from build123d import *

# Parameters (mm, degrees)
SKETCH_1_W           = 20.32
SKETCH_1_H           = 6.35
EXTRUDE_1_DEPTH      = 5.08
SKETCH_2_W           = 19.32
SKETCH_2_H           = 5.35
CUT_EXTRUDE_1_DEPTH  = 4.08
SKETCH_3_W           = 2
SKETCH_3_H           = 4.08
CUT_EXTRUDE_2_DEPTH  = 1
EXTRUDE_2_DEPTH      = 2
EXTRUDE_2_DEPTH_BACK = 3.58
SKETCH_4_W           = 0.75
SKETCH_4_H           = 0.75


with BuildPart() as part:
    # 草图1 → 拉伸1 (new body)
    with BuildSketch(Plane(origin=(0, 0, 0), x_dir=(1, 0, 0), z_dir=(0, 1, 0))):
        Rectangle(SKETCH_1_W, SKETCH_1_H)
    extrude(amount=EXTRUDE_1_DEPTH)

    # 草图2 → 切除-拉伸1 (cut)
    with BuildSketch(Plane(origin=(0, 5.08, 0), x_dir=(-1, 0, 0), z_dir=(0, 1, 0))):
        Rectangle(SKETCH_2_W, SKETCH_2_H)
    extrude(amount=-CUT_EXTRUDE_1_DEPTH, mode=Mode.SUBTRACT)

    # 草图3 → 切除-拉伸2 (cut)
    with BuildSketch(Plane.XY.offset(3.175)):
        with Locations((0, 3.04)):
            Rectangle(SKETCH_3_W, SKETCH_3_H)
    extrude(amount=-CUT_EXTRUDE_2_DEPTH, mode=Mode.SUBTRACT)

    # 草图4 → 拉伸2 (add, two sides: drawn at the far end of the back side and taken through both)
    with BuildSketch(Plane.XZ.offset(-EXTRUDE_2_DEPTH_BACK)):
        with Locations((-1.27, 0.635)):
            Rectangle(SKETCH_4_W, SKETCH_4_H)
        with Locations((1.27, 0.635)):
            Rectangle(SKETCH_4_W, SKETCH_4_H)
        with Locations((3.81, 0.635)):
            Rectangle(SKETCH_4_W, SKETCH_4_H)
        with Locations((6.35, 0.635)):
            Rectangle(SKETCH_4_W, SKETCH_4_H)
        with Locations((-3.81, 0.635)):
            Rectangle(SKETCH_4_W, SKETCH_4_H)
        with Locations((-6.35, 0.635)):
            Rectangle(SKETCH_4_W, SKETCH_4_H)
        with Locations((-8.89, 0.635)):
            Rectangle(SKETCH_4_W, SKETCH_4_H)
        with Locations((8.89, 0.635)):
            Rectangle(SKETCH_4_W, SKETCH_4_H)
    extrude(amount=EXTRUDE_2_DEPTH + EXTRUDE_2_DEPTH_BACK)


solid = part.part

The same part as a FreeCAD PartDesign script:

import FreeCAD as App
import Part
import Sketcher
Q = App.Units.Quantity

doc = App.newDocument("Part")
params = doc.addObject("Spreadsheet::Sheet", "Params")
for row, (alias, value) in enumerate([
    ("sketch1_width", "0.8 in"),
    ("sketch1_height", "0.25 in"),
    ("pad1_length", "0.2 in"),
    ("pocket1_length", "4.08 mm"),
    ("pocket2_length", "1 mm"),
    ("pad2_length", "2 mm"),
    ("pad2_length2", "3.58 mm"),
], start=1):
    params.set(f"A{row}", alias)
    params.set(f"B{row}", "=" + value)
    params.setAlias(f"B{row}", alias)

body = doc.addObject("PartDesign::Body", "Body")

sketch1 = doc.addObject("Sketcher::SketchObject", "Sketch")
body.addObject(sketch1)
sketch1.AttachmentSupport = (doc.XZ_Plane, [""])
sketch1.MapMode = "FlatFace"
sketch1.addGeometry(Part.LineSegment(App.Vector(-10.16, -3.175, 0), App.Vector(-10.16, 3.175, 0)), False)
sketch1.addGeometry(Part.LineSegment(App.Vector(-10.16, 3.175, 0), App.Vector(10.16, 3.175, 0)), False)
sketch1.addGeometry(Part.LineSegment(App.Vector(10.16, 3.175, 0), App.Vector(10.16, -3.175, 0)), False)
sketch1.addGeometry(Part.LineSegment(App.Vector(10.16, -3.175, 0), App.Vector(-10.16, -3.175, 0)), False)
sketch1.addConstraint(Sketcher.Constraint("Coincident", 0, 2, 1, 1))
sketch1.addConstraint(Sketcher.Constraint("Coincident", 1, 2, 2, 1))
sketch1.addConstraint(Sketcher.Constraint("Coincident", 2, 2, 3, 1))
sketch1.addConstraint(Sketcher.Constraint("Coincident", 3, 2, 0, 1))
sketch1.addConstraint(Sketcher.Constraint("Vertical", 0))
sketch1.addConstraint(Sketcher.Constraint("Horizontal", 1))
sketch1.addConstraint(Sketcher.Constraint("Vertical", 2))
sketch1.addConstraint(Sketcher.Constraint("Horizontal", 3))
sketch1.addConstraint(Sketcher.Constraint("Symmetric", 0, 2, 2, 2, -1, 1))
sketch1.addConstraint(Sketcher.Constraint("DistanceX", 1, 1, 1, 2, Q("0.8 in")))
sketch1.addConstraint(Sketcher.Constraint("DistanceY", 0, 1, 0, 2, Q("0.25 in")))
sketch1.setExpression("Constraints[9]", "Params.sketch1_width")
sketch1.setExpression("Constraints[10]", "Params.sketch1_height")
pad1 = doc.addObject("PartDesign::Pad", "Pad")
body.addObject(pad1)
pad1.Profile = sketch1
pad1.setExpression("Length", "Params.pad1_length")
pad1.Reversed = True

sketch2 = doc.addObject("Sketcher::SketchObject", "Sketch001")
body.addObject(sketch2)
sketch2.AttachmentSupport = (doc.XZ_Plane, [""])
sketch2.MapMode = "FlatFace"
sketch2.AttachmentOffset = App.Placement(App.Vector(0, 0, -0.2 * 25.4), App.Rotation())
sketch2.addGeometry(Part.LineSegment(App.Vector(9.66, 2.675, 0), App.Vector(9.66, -2.675, 0)), False)
sketch2.addGeometry(Part.LineSegment(App.Vector(9.66, -2.675, 0), App.Vector(-9.66, -2.675, 0)), False)
sketch2.addGeometry(Part.LineSegment(App.Vector(-9.66, -2.675, 0), App.Vector(-9.66, 2.675, 0)), False)
sketch2.addGeometry(Part.LineSegment(App.Vector(-9.66, 2.675, 0), App.Vector(9.66, 2.675, 0)), False)
sketch2.addConstraint(Sketcher.Constraint("Coincident", 0, 2, 1, 1))
sketch2.addConstraint(Sketcher.Constraint("Coincident", 1, 2, 2, 1))
sketch2.addConstraint(Sketcher.Constraint("Coincident", 2, 2, 3, 1))
sketch2.addConstraint(Sketcher.Constraint("Coincident", 3, 2, 0, 1))
sketch2.addConstraint(Sketcher.Constraint("Vertical", 0))
sketch2.addConstraint(Sketcher.Constraint("Horizontal", 1))
sketch2.addConstraint(Sketcher.Constraint("Vertical", 2))
sketch2.addConstraint(Sketcher.Constraint("Horizontal", 3))
sketch2.addConstraint(Sketcher.Constraint("Symmetric", 0, 2, 2, 2, -1, 1))
sketch2.addConstraint(Sketcher.Constraint("DistanceX", 1, 2, 1, 1, 19.32))
sketch2.addConstraint(Sketcher.Constraint("DistanceY", 0, 2, 0, 1, 5.35))
pocket1 = doc.addObject("PartDesign::Pocket", "Pocket")
body.addObject(pocket1)
pocket1.Profile = sketch2
pocket1.setExpression("Length", "Params.pocket1_length")
pocket1.Reversed = True

sketch3 = doc.addObject("Sketcher::SketchObject", "Sketch002")
body.addObject(sketch3)
sketch3.AttachmentSupport = (doc.XY_Plane, [""])
sketch3.MapMode = "FlatFace"
sketch3.AttachmentOffset = App.Placement(App.Vector(0, 0, 0.125 * 25.4), App.Rotation())
sketch3.addGeometry(Part.LineSegment(App.Vector(-1, 5.08, 0), App.Vector(-1, 1, 0)), False)
sketch3.addGeometry(Part.LineSegment(App.Vector(-1, 1, 0), App.Vector(1, 1, 0)), False)
sketch3.addGeometry(Part.LineSegment(App.Vector(1, 1, 0), App.Vector(1, 5.08, 0)), False)
sketch3.addGeometry(Part.LineSegment(App.Vector(1, 5.08, 0), App.Vector(-1, 5.08, 0)), False)
sketch3.addConstraint(Sketcher.Constraint("Coincident", 0, 2, 1, 1))
sketch3.addConstraint(Sketcher.Constraint("Coincident", 1, 2, 2, 1))
sketch3.addConstraint(Sketcher.Constraint("Coincident", 2, 2, 3, 1))
sketch3.addConstraint(Sketcher.Constraint("Coincident", 3, 2, 0, 1))
sketch3.addConstraint(Sketcher.Constraint("Vertical", 0))
sketch3.addConstraint(Sketcher.Constraint("Horizontal", 1))
sketch3.addConstraint(Sketcher.Constraint("Vertical", 2))
sketch3.addConstraint(Sketcher.Constraint("Horizontal", 3))
sketch3.addConstraint(Sketcher.Constraint("DistanceY", -1, 1, 2, 2, Q("0.2 in")))
sketch3.addConstraint(Sketcher.Constraint("DistanceX", 1, 1, 1, 2, 2.0))
sketch3.addConstraint(Sketcher.Constraint("DistanceY", 0, 2, 0, 1, 4.08))
sketch3.addConstraint(Sketcher.Constraint("DistanceX", 0, 2, -1, 1, 1.0))
pocket2 = doc.addObject("PartDesign::Pocket", "Pocket001")
body.addObject(pocket2)
pocket2.Profile = sketch3
pocket2.setExpression("Length", "Params.pocket2_length")

sketch4 = doc.addObject("Sketcher::SketchObject", "Sketch003")
body.addObject(sketch4)
sketch4.AttachmentSupport = (doc.XZ_Plane, [""])
sketch4.MapMode = "FlatFace"
sketch4.addGeometry(Part.LineSegment(App.Vector(-1.645, 1.01, 0), App.Vector(-1.645, 0.26, 0)), False)
sketch4.addGeometry(Part.LineSegment(App.Vector(-1.645, 0.26, 0), App.Vector(-0.895, 0.26, 0)), False)
sketch4.addGeometry(Part.LineSegment(App.Vector(-0.895, 0.26, 0), App.Vector(-0.895, 1.01, 0)), False)
sketch4.addGeometry(Part.LineSegment(App.Vector(-0.895, 1.01, 0), App.Vector(-1.645, 1.01, 0)), False)
sketch4.addGeometry(Part.LineSegment(App.Vector(0.895, 1.01, 0), App.Vector(0.895, 0.26, 0)), False)
sketch4.addGeometry(Part.LineSegment(App.Vector(0.895, 0.26, 0), App.Vector(1.645, 0.26, 0)), False)
sketch4.addGeometry(Part.LineSegment(App.Vector(1.645, 0.26, 0), App.Vector(1.645, 1.01, 0)), False)
sketch4.addGeometry(Part.LineSegment(App.Vector(1.645, 1.01, 0), App.Vector(0.895, 1.01, 0)), False)
sketch4.addGeometry(Part.LineSegment(App.Vector(3.435, 1.01, 0), App.Vector(3.435, 0.26, 0)), False)
sketch4.addGeometry(Part.LineSegment(App.Vector(3.435, 0.26, 0), App.Vector(4.185, 0.26, 0)), False)
sketch4.addGeometry(Part.LineSegment(App.Vector(4.185, 0.26, 0), App.Vector(4.185, 1.01, 0)), False)
sketch4.addGeometry(Part.LineSegment(App.Vector(4.185, 1.01, 0), App.Vector(3.435, 1.01, 0)), False)
sketch4.addGeometry(Part.LineSegment(App.Vector(5.975, 1.01, 0), App.Vector(5.975, 0.26, 0)), False)
sketch4.addGeometry(Part.LineSegment(App.Vector(5.975, 0.26, 0), App.Vector(6.725, 0.26, 0)), False)
sketch4.addGeometry(Part.LineSegment(App.Vector(6.725, 0.26, 0), App.Vector(6.725, 1.01, 0)), False)
sketch4.addGeometry(Part.LineSegment(App.Vector(6.725, 1.01, 0), App.Vector(5.975, 1.01, 0)), False)
sketch4.addGeometry(Part.LineSegment(App.Vector(-4.185, 1.01, 0), App.Vector(-4.185, 0.26, 0)), False)
sketch4.addGeometry(Part.LineSegment(App.Vector(-4.185, 0.26, 0), App.Vector(-3.435, 0.26, 0)), False)
sketch4.addGeometry(Part.LineSegment(App.Vector(-3.435, 0.26, 0), App.Vector(-3.435, 1.01, 0)), False)
sketch4.addGeometry(Part.LineSegment(App.Vector(-3.435, 1.01, 0), App.Vector(-4.185, 1.01, 0)), False)
sketch4.addGeometry(Part.LineSegment(App.Vector(-6.725, 1.01, 0), App.Vector(-6.725, 0.26, 0)), False)
sketch4.addGeometry(Part.LineSegment(App.Vector(-6.725, 0.26, 0), App.Vector(-5.975, 0.26, 0)), False)
sketch4.addGeometry(Part.LineSegment(App.Vector(-5.975, 0.26, 0), App.Vector(-5.975, 1.01, 0)), False)
sketch4.addGeometry(Part.LineSegment(App.Vector(-5.975, 1.01, 0), App.Vector(-6.725, 1.01, 0)), False)
sketch4.addGeometry(Part.LineSegment(App.Vector(-9.265, 1.01, 0), App.Vector(-9.265, 0.26, 0)), False)
sketch4.addGeometry(Part.LineSegment(App.Vector(-9.265, 0.26, 0), App.Vector(-8.515, 0.26, 0)), False)
sketch4.addGeometry(Part.LineSegment(App.Vector(-8.515, 0.26, 0), App.Vector(-8.515, 1.01, 0)), False)
sketch4.addGeometry(Part.LineSegment(App.Vector(-8.515, 1.01, 0), App.Vector(-9.265, 1.01, 0)), False)
sketch4.addGeometry(Part.LineSegment(App.Vector(8.515, 1.01, 0), App.Vector(8.515, 0.26, 0)), False)
sketch4.addGeometry(Part.LineSegment(App.Vector(8.515, 0.26, 0), App.Vector(9.265, 0.26, 0)), False)
sketch4.addGeometry(Part.LineSegment(App.Vector(9.265, 0.26, 0), App.Vector(9.265, 1.01, 0)), False)
sketch4.addGeometry(Part.LineSegment(App.Vector(9.265, 1.01, 0), App.Vector(8.515, 1.01, 0)), False)
sketch4.addConstraint(Sketcher.Constraint("Coincident", 0, 2, 1, 1))
sketch4.addConstraint(Sketcher.Constraint("Coincident", 1, 2, 2, 1))
sketch4.addConstraint(Sketcher.Constraint("Coincident", 2, 2, 3, 1))
sketch4.addConstraint(Sketcher.Constraint("Coincident", 3, 2, 0, 1))
sketch4.addConstraint(Sketcher.Constraint("Coincident", 4, 2, 5, 1))
sketch4.addConstraint(Sketcher.Constraint("Coincident", 5, 2, 6, 1))
sketch4.addConstraint(Sketcher.Constraint("Coincident", 6, 2, 7, 1))
sketch4.addConstraint(Sketcher.Constraint("Coincident", 7, 2, 4, 1))
sketch4.addConstraint(Sketcher.Constraint("Coincident", 8, 2, 9, 1))
sketch4.addConstraint(Sketcher.Constraint("Coincident", 9, 2, 10, 1))
sketch4.addConstraint(Sketcher.Constraint("Coincident", 10, 2, 11, 1))
sketch4.addConstraint(Sketcher.Constraint("Coincident", 11, 2, 8, 1))
sketch4.addConstraint(Sketcher.Constraint("Coincident", 12, 2, 13, 1))
sketch4.addConstraint(Sketcher.Constraint("Coincident", 13, 2, 14, 1))
sketch4.addConstraint(Sketcher.Constraint("Coincident", 14, 2, 15, 1))
sketch4.addConstraint(Sketcher.Constraint("Coincident", 15, 2, 12, 1))
sketch4.addConstraint(Sketcher.Constraint("Coincident", 16, 2, 17, 1))
sketch4.addConstraint(Sketcher.Constraint("Coincident", 17, 2, 18, 1))
sketch4.addConstraint(Sketcher.Constraint("Coincident", 18, 2, 19, 1))
sketch4.addConstraint(Sketcher.Constraint("Coincident", 19, 2, 16, 1))
sketch4.addConstraint(Sketcher.Constraint("Coincident", 20, 2, 21, 1))
sketch4.addConstraint(Sketcher.Constraint("Coincident", 21, 2, 22, 1))
sketch4.addConstraint(Sketcher.Constraint("Coincident", 22, 2, 23, 1))
sketch4.addConstraint(Sketcher.Constraint("Coincident", 23, 2, 20, 1))
sketch4.addConstraint(Sketcher.Constraint("Coincident", 24, 2, 25, 1))
sketch4.addConstraint(Sketcher.Constraint("Coincident", 25, 2, 26, 1))
sketch4.addConstraint(Sketcher.Constraint("Coincident", 26, 2, 27, 1))
sketch4.addConstraint(Sketcher.Constraint("Coincident", 27, 2, 24, 1))
sketch4.addConstraint(Sketcher.Constraint("Coincident", 28, 2, 29, 1))
sketch4.addConstraint(Sketcher.Constraint("Coincident", 29, 2, 30, 1))
sketch4.addConstraint(Sketcher.Constraint("Coincident", 30, 2, 31, 1))
sketch4.addConstraint(Sketcher.Constraint("Coincident", 31, 2, 28, 1))
sketch4.addConstraint(Sketcher.Constraint("Vertical", 0))
sketch4.addConstraint(Sketcher.Constraint("Horizontal", 1))
sketch4.addConstraint(Sketcher.Constraint("Vertical", 2))
sketch4.addConstraint(Sketcher.Constraint("Horizontal", 3))
sketch4.addConstraint(Sketcher.Constraint("Vertical", 4))
sketch4.addConstraint(Sketcher.Constraint("Horizontal", 5))
sketch4.addConstraint(Sketcher.Constraint("Vertical", 6))
sketch4.addConstraint(Sketcher.Constraint("Horizontal", 7))
sketch4.addConstraint(Sketcher.Constraint("Vertical", 8))
sketch4.addConstraint(Sketcher.Constraint("Horizontal", 9))
sketch4.addConstraint(Sketcher.Constraint("Vertical", 10))
sketch4.addConstraint(Sketcher.Constraint("Horizontal", 11))
sketch4.addConstraint(Sketcher.Constraint("Vertical", 12))
sketch4.addConstraint(Sketcher.Constraint("Horizontal", 13))
sketch4.addConstraint(Sketcher.Constraint("Vertical", 14))
sketch4.addConstraint(Sketcher.Constraint("Horizontal", 15))
sketch4.addConstraint(Sketcher.Constraint("Vertical", 16))
sketch4.addConstraint(Sketcher.Constraint("Horizontal", 17))
sketch4.addConstraint(Sketcher.Constraint("Vertical", 18))
sketch4.addConstraint(Sketcher.Constraint("Horizontal", 19))
sketch4.addConstraint(Sketcher.Constraint("Vertical", 20))
sketch4.addConstraint(Sketcher.Constraint("Horizontal", 21))
sketch4.addConstraint(Sketcher.Constraint("Vertical", 22))
sketch4.addConstraint(Sketcher.Constraint("Horizontal", 23))
sketch4.addConstraint(Sketcher.Constraint("Vertical", 24))
sketch4.addConstraint(Sketcher.Constraint("Horizontal", 25))
sketch4.addConstraint(Sketcher.Constraint("Vertical", 26))
sketch4.addConstraint(Sketcher.Constraint("Horizontal", 27))
sketch4.addConstraint(Sketcher.Constraint("Vertical", 28))
sketch4.addConstraint(Sketcher.Constraint("Horizontal", 29))
sketch4.addConstraint(Sketcher.Constraint("Vertical", 30))
sketch4.addConstraint(Sketcher.Constraint("Horizontal", 31))
sketch4.addConstraint(Sketcher.Constraint("Symmetric", 1, 2, 4, 2, -2))
sketch4.addConstraint(Sketcher.Constraint("Symmetric", 3, 2, 6, 2, -2))
sketch4.addConstraint(Sketcher.Constraint("Symmetric", 9, 2, 16, 2, -2))
sketch4.addConstraint(Sketcher.Constraint("Symmetric", 11, 2, 18, 2, -2))
sketch4.addConstraint(Sketcher.Constraint("Symmetric", 13, 2, 20, 2, -2))
sketch4.addConstraint(Sketcher.Constraint("Symmetric", 15, 2, 22, 2, -2))
sketch4.addConstraint(Sketcher.Constraint("Symmetric", 25, 2, 28, 2, -2))
sketch4.addConstraint(Sketcher.Constraint("Symmetric", 27, 2, 30, 2, -2))
sketch4.addConstraint(Sketcher.Constraint("Horizontal", 5, 2, 8, 2))
sketch4.addConstraint(Sketcher.Constraint("Horizontal", 7, 2, 10, 2))
sketch4.addConstraint(Sketcher.Constraint("Horizontal", 9, 2, 12, 2))
sketch4.addConstraint(Sketcher.Constraint("Horizontal", 11, 2, 14, 2))
sketch4.addConstraint(Sketcher.Constraint("Horizontal", 21, 2, 24, 2))
sketch4.addConstraint(Sketcher.Constraint("Horizontal", 23, 2, 26, 2))
sketch4.addConstraint(Sketcher.Constraint("Equal", 7, 9))
sketch4.addConstraint(Sketcher.Constraint("Equal", 11, 13))
sketch4.addConstraint(Sketcher.Constraint("Equal", 23, 25))
sketch4.addConstraint(Sketcher.Constraint("Equal", 31, 0))
sketch4.addConstraint(Sketcher.Constraint("DistanceX", 0, 2, 4, 2, Q("0.1 in")))
sketch4.addConstraint(Sketcher.Constraint("DistanceX", 4, 2, 8, 2, Q("0.1 in")))
sketch4.addConstraint(Sketcher.Constraint("DistanceX", 8, 2, 12, 2, Q("0.1 in")))
sketch4.addConstraint(Sketcher.Constraint("DistanceX", 24, 2, 20, 2, Q("0.1 in")))
sketch4.addConstraint(Sketcher.Constraint("DistanceX", 1, 1, 1, 2, 0.75))
sketch4.addConstraint(Sketcher.Constraint("DistanceY", -1, 1, 0, 2, 0.26))
pad2 = doc.addObject("PartDesign::Pad", "Pad001")
body.addObject(pad2)
pad2.Profile = sketch4
pad2.Type = "TwoLengths"
pad2.setExpression("Length", "Params.pad2_length")
pad2.setExpression("Length2", "Params.pad2_length2")

doc.recompute()
